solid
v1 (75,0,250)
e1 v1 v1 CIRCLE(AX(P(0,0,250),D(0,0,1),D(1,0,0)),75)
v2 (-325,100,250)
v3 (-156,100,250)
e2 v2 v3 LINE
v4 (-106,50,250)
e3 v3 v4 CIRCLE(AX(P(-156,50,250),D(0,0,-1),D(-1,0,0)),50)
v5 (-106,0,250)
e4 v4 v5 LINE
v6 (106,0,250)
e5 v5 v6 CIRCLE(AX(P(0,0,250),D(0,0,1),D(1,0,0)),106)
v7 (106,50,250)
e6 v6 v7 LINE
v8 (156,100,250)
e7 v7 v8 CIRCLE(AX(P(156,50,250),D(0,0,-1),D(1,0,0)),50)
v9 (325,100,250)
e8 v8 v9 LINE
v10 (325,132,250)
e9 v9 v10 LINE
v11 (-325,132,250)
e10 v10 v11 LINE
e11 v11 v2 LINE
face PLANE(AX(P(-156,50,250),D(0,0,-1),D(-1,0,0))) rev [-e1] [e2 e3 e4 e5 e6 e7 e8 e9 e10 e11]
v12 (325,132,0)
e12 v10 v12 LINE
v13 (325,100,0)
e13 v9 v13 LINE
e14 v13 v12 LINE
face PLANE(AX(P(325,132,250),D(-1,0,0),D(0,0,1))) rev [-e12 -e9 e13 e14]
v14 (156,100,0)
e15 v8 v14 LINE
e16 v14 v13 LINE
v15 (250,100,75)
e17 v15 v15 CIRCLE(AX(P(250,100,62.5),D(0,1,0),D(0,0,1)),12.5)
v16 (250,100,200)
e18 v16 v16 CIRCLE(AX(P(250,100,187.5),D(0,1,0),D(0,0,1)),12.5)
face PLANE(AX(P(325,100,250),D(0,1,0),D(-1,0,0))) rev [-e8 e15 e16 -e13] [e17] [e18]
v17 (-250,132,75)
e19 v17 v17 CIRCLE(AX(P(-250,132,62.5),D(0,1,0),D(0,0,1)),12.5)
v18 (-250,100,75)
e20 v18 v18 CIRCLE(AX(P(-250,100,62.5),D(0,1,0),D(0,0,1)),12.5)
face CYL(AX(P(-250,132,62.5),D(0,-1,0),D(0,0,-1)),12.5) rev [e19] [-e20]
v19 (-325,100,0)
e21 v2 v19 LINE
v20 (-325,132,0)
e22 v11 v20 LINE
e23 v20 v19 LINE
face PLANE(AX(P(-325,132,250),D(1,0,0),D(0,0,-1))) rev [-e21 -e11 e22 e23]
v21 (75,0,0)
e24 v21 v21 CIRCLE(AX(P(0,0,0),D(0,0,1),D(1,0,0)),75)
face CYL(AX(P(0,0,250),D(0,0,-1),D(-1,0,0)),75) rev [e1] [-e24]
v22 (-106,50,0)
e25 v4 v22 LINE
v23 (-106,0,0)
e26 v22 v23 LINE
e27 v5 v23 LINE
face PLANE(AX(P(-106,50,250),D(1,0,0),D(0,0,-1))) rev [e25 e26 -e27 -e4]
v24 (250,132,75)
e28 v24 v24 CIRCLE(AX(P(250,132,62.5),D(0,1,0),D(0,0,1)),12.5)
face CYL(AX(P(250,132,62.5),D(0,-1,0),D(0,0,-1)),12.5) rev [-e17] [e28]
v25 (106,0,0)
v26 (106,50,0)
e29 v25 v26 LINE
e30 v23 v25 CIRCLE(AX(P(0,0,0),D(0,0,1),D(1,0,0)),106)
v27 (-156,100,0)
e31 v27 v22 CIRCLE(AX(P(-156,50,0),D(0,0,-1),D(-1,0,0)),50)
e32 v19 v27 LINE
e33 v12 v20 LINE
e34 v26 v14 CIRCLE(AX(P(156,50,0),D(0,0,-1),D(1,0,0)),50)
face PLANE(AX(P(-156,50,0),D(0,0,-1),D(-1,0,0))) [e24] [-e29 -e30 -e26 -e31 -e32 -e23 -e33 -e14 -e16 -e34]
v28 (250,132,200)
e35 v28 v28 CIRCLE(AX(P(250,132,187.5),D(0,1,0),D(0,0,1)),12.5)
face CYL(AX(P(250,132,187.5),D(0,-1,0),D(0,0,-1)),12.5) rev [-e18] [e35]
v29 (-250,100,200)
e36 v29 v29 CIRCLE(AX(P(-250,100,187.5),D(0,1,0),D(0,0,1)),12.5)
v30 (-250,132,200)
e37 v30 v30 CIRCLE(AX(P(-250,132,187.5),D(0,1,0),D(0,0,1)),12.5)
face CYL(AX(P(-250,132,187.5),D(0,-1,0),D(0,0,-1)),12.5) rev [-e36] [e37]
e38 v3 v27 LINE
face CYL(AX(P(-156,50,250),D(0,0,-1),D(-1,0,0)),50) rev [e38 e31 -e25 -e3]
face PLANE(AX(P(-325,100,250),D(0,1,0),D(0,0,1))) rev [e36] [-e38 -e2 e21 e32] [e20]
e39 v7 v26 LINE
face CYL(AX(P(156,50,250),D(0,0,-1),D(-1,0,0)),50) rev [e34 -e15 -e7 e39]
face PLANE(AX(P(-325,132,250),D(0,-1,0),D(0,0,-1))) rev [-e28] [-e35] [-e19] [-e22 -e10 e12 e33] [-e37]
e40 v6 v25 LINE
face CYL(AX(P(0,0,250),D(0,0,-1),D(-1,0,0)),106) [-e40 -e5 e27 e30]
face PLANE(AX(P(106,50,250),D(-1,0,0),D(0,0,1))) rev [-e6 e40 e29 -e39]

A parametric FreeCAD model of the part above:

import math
import FreeCAD as App
import Part
import Sketcher
from FreeCAD import Vector

doc = App.newDocument("Part")
body = doc.addObject("PartDesign::Body", "Body")

# Sketch on XY plane
sketch1 = body.newObject("Sketcher::SketchObject", "Sketch")
sketch1.AttachmentSupport = (doc.getObject("XY_Plane"), [""])
sketch1.MapMode = "FlatFace"
sketch1.addGeometry(Part.LineSegment(Vector(325, 132, 0), Vector(-325, 132, 0)), False)
sketch1.addGeometry(Part.LineSegment(Vector(-325, 132, 0), Vector(-325, 100, 0)), False)
sketch1.addGeometry(Part.LineSegment(Vector(-325, 100, 0), Vector(-156, 100, 0)), False)
sketch1.addGeometry(Part.ArcOfCircle(Part.Circle(Vector(-156, 50, 0), Vector(0, 0, 1), 50), math.radians(0), math.radians(90)), False)
sketch1.addGeometry(Part.LineSegment(Vector(-106, 50, 0), Vector(-106, 0, 0)), False)
sketch1.addGeometry(Part.ArcOfCircle(Part.Circle(Vector(0, 0, 0), Vector(0, 0, 1), 106), math.radians(180), math.radians(360)), False)
sketch1.addGeometry(Part.LineSegment(Vector(106, 0, 0), Vector(106, 50, 0)), False)
sketch1.addGeometry(Part.ArcOfCircle(Part.Circle(Vector(156, 50, 0), Vector(0, 0, 1), 50), math.radians(90), math.radians(180)), False)
sketch1.addGeometry(Part.LineSegment(Vector(156, 100, 0), Vector(325, 100, 0)), False)
sketch1.addGeometry(Part.LineSegment(Vector(325, 100, 0), Vector(325, 132, 0)), False)
sketch1.addGeometry(Part.Circle(Vector(0, 0, 0), Vector(0, 0, 1), 75), False)
sketch1.addConstraint(Sketcher.Constraint("Coincident", 0, 2, 1, 1))
sketch1.addConstraint(Sketcher.Constraint("Coincident", 1, 2, 2, 1))
sketch1.addConstraint(Sketcher.Constraint("Tangent", 2, 2, 3, 2))
sketch1.addConstraint(Sketcher.Constraint("Tangent", 3, 1, 4, 1))
sketch1.addConstraint(Sketcher.Constraint("Tangent", 4, 2, 5, 1))
sketch1.addConstraint(Sketcher.Constraint("Tangent", 5, 2, 6, 1))
sketch1.addConstraint(Sketcher.Constraint("Tangent", 6, 2, 7, 2))
sketch1.addConstraint(Sketcher.Constraint("Tangent", 7, 1, 8, 1))
sketch1.addConstraint(Sketcher.Constraint("Coincident", 8, 2, 9, 1))
sketch1.addConstraint(Sketcher.Constraint("Coincident", 9, 2, 0, 1))
sketch1.addConstraint(Sketcher.Constraint("Horizontal", 0))
sketch1.addConstraint(Sketcher.Constraint("Vertical", 1))
sketch1.addConstraint(Sketcher.Constraint("Horizontal", 2))
sketch1.addConstraint(Sketcher.Constraint("Vertical", 4))
sketch1.addConstraint(Sketcher.Constraint("Vertical", 6))
sketch1.addConstraint(Sketcher.Constraint("Horizontal", 8))
sketch1.addConstraint(Sketcher.Constraint("Vertical", 9))
sketch1.addConstraint(Sketcher.Constraint("Coincident", 5, 3, -1, 1))
sketch1.addConstraint(Sketcher.Constraint("Coincident", 10, 3, -1, 1))
sketch1.addConstraint(Sketcher.Constraint("Equal", 3, 7))
sketch1.addConstraint(Sketcher.Constraint("Symmetric", 1, 2, 8, 2, -2))
sketch1.addConstraint(Sketcher.Constraint("Diameter", 10, 150.0))
sketch1.addConstraint(Sketcher.Constraint("Radius", 3, 50.0))
sketch1.addConstraint(Sketcher.Constraint("Radius", 5, 106.0))
sketch1.addConstraint(Sketcher.Constraint("DistanceX", 0, 2, 0, 1, 650.0))
sketch1.addConstraint(Sketcher.Constraint("DistanceY", 1, 2, 1, 1, 32.0))
sketch1.addConstraint(Sketcher.Constraint("DistanceY", 4, 2, 4, 1, 50.0))
pad1 = body.newObject("PartDesign::Pad", "Pad")
pad1.Profile = sketch1
pad1.Length = 250

# Sketch on XZ plane
sketch2 = body.newObject("Sketcher::SketchObject", "Sketch001")
sketch2.AttachmentSupport = (doc.getObject("XZ_Plane"), [""])
sketch2.MapMode = "FlatFace"
sketch2.AttachmentOffset = App.Placement(Vector(0, 0, -100), App.Rotation())
sketch2.addGeometry(Part.Circle(Vector(-250, 62, 0), Vector(0, 0, 1), 12), False)
sketch2.addGeometry(Part.Circle(Vector(250, 62, 0), Vector(0, 0, 1), 12), False)
sketch2.addGeometry(Part.Circle(Vector(250, 188, 0), Vector(0, 0, 1), 12), False)
sketch2.addGeometry(Part.Circle(Vector(-250, 188, 0), Vector(0, 0, 1), 12), False)
sketch2.addConstraint(Sketcher.Constraint("Equal", 0, 1))
sketch2.addConstraint(Sketcher.Constraint("Equal", 1, 2))
sketch2.addConstraint(Sketcher.Constraint("Equal", 2, 3))
sketch2.addConstraint(Sketcher.Constraint("Symmetric", 0, 3, 1, 3, -2))
sketch2.addConstraint(Sketcher.Constraint("Symmetric", 2, 3, 3, 3, -2))
sketch2.addConstraint(Sketcher.Constraint("Vertical", 1, 3, 2, 3))
sketch2.addConstraint(Sketcher.Constraint("Diameter", 0, 25.0))
sketch2.addConstraint(Sketcher.Constraint("DistanceX", 0, 3, -1, 1, 250.0))
sketch2.addConstraint(Sketcher.Constraint("DistanceY", 1, 3, 2, 3, 125.0))
sketch2.addConstraint(Sketcher.Constraint("DistanceY", -1, 1, 0, 3, 62.5))
pocket1 = body.newObject("PartDesign::Pocket", "Pocket")
pocket1.Profile = sketch2
pocket1.Type = "ThroughAll"

doc.recompute()
